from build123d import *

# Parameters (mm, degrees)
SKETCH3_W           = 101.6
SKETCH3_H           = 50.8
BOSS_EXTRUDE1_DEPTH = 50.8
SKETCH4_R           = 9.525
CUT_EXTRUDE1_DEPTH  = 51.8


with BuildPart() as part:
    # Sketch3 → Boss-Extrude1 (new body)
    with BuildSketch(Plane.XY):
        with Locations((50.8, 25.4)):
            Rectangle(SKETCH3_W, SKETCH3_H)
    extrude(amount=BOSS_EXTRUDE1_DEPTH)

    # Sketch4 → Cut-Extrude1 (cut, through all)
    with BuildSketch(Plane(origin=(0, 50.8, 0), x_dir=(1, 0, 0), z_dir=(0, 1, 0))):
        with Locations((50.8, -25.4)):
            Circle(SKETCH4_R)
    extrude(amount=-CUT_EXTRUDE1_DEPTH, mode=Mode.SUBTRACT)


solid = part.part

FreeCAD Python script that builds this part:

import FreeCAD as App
import Part
import Sketcher
from FreeCAD import Vector
Q = App.Units.Quantity

doc = App.newDocument("Part")
body = doc.addObject("PartDesign::Body", "Body")

# Sketch on XY plane
sketch1 = body.newObject("Sketcher::SketchObject", "Sketch")
sketch1.AttachmentSupport = (doc.getObject("XY_Plane"), [""])
sketch1.MapMode = "FlatFace"
sketch1.addGeometry(Part.LineSegment(Vector(0, 50.8, 0), Vector(0, 0, 0)), False)
sketch1.addGeometry(Part.LineSegment(Vector(0, 0, 0), Vector(101.6, 0, 0)), False)
sketch1.addGeometry(Part.LineSegment(Vector(101.6, 0, 0), Vector(101.6, 50.8, 0)), False)
sketch1.addGeometry(Part.LineSegment(Vector(101.6, 50.8, 0), Vector(0, 50.8, 0)), False)
sketch1.addConstraint(Sketcher.Constraint("Coincident", 0, 2, 1, 1))
sketch1.addConstraint(Sketcher.Constraint("Coincident", 1, 2, 2, 1))
sketch1.addConstraint(Sketcher.Constraint("Coincident", 2, 2, 3, 1))
sketch1.addConstraint(Sketcher.Constraint("Coincident", 3, 2, 0, 1))
sketch1.addConstraint(Sketcher.Constraint("Vertical", 0))
sketch1.addConstraint(Sketcher.Constraint("Horizontal", 1))
sketch1.addConstraint(Sketcher.Constraint("Vertical", 2))
sketch1.addConstraint(Sketcher.Constraint("Horizontal", 3))
sketch1.addConstraint(Sketcher.Constraint("Coincident", 0, 2, -1, 1))
sketch1.addConstraint(Sketcher.Constraint("DistanceX", 1, 1, 1, 2, Q("4 in")))
sketch1.addConstraint(Sketcher.Constraint("DistanceY", 0, 2, 0, 1, Q("2 in")))
pad1 = body.newObject("PartDesign::Pad", "Pad")
pad1.Profile = sketch1
pad1.Length = Q("2 in")

# Sketch on XZ plane
sketch2 = body.newObject("Sketcher::SketchObject", "Sketch001")
sketch2.AttachmentSupport = (doc.getObject("XZ_Plane"), [""])
sketch2.MapMode = "FlatFace"
sketch2.AttachmentOffset = App.Placement(Vector(0, 0, -2 * 25.4), App.Rotation())
sketch2.addGeometry(Part.Circle(Vector(50.8, 25.4, 0), Vector(0, 0, 1), 9.525), False)
sketch2.addConstraint(Sketcher.Constraint("Diameter", 0, Q("0.75 in")))
sketch2.addConstraint(Sketcher.Constraint("DistanceX", -1, 1, 0, 3, Q("2 in")))
sketch2.addConstraint(Sketcher.Constraint("DistanceY", -1, 1, 0, 3, Q("1 in")))
pocket1 = body.newObject("PartDesign::Pocket", "Pocket")
pocket1.Profile = sketch2
pocket1.Type = "ThroughAll"
pocket1.Reversed = True

doc.recompute()
